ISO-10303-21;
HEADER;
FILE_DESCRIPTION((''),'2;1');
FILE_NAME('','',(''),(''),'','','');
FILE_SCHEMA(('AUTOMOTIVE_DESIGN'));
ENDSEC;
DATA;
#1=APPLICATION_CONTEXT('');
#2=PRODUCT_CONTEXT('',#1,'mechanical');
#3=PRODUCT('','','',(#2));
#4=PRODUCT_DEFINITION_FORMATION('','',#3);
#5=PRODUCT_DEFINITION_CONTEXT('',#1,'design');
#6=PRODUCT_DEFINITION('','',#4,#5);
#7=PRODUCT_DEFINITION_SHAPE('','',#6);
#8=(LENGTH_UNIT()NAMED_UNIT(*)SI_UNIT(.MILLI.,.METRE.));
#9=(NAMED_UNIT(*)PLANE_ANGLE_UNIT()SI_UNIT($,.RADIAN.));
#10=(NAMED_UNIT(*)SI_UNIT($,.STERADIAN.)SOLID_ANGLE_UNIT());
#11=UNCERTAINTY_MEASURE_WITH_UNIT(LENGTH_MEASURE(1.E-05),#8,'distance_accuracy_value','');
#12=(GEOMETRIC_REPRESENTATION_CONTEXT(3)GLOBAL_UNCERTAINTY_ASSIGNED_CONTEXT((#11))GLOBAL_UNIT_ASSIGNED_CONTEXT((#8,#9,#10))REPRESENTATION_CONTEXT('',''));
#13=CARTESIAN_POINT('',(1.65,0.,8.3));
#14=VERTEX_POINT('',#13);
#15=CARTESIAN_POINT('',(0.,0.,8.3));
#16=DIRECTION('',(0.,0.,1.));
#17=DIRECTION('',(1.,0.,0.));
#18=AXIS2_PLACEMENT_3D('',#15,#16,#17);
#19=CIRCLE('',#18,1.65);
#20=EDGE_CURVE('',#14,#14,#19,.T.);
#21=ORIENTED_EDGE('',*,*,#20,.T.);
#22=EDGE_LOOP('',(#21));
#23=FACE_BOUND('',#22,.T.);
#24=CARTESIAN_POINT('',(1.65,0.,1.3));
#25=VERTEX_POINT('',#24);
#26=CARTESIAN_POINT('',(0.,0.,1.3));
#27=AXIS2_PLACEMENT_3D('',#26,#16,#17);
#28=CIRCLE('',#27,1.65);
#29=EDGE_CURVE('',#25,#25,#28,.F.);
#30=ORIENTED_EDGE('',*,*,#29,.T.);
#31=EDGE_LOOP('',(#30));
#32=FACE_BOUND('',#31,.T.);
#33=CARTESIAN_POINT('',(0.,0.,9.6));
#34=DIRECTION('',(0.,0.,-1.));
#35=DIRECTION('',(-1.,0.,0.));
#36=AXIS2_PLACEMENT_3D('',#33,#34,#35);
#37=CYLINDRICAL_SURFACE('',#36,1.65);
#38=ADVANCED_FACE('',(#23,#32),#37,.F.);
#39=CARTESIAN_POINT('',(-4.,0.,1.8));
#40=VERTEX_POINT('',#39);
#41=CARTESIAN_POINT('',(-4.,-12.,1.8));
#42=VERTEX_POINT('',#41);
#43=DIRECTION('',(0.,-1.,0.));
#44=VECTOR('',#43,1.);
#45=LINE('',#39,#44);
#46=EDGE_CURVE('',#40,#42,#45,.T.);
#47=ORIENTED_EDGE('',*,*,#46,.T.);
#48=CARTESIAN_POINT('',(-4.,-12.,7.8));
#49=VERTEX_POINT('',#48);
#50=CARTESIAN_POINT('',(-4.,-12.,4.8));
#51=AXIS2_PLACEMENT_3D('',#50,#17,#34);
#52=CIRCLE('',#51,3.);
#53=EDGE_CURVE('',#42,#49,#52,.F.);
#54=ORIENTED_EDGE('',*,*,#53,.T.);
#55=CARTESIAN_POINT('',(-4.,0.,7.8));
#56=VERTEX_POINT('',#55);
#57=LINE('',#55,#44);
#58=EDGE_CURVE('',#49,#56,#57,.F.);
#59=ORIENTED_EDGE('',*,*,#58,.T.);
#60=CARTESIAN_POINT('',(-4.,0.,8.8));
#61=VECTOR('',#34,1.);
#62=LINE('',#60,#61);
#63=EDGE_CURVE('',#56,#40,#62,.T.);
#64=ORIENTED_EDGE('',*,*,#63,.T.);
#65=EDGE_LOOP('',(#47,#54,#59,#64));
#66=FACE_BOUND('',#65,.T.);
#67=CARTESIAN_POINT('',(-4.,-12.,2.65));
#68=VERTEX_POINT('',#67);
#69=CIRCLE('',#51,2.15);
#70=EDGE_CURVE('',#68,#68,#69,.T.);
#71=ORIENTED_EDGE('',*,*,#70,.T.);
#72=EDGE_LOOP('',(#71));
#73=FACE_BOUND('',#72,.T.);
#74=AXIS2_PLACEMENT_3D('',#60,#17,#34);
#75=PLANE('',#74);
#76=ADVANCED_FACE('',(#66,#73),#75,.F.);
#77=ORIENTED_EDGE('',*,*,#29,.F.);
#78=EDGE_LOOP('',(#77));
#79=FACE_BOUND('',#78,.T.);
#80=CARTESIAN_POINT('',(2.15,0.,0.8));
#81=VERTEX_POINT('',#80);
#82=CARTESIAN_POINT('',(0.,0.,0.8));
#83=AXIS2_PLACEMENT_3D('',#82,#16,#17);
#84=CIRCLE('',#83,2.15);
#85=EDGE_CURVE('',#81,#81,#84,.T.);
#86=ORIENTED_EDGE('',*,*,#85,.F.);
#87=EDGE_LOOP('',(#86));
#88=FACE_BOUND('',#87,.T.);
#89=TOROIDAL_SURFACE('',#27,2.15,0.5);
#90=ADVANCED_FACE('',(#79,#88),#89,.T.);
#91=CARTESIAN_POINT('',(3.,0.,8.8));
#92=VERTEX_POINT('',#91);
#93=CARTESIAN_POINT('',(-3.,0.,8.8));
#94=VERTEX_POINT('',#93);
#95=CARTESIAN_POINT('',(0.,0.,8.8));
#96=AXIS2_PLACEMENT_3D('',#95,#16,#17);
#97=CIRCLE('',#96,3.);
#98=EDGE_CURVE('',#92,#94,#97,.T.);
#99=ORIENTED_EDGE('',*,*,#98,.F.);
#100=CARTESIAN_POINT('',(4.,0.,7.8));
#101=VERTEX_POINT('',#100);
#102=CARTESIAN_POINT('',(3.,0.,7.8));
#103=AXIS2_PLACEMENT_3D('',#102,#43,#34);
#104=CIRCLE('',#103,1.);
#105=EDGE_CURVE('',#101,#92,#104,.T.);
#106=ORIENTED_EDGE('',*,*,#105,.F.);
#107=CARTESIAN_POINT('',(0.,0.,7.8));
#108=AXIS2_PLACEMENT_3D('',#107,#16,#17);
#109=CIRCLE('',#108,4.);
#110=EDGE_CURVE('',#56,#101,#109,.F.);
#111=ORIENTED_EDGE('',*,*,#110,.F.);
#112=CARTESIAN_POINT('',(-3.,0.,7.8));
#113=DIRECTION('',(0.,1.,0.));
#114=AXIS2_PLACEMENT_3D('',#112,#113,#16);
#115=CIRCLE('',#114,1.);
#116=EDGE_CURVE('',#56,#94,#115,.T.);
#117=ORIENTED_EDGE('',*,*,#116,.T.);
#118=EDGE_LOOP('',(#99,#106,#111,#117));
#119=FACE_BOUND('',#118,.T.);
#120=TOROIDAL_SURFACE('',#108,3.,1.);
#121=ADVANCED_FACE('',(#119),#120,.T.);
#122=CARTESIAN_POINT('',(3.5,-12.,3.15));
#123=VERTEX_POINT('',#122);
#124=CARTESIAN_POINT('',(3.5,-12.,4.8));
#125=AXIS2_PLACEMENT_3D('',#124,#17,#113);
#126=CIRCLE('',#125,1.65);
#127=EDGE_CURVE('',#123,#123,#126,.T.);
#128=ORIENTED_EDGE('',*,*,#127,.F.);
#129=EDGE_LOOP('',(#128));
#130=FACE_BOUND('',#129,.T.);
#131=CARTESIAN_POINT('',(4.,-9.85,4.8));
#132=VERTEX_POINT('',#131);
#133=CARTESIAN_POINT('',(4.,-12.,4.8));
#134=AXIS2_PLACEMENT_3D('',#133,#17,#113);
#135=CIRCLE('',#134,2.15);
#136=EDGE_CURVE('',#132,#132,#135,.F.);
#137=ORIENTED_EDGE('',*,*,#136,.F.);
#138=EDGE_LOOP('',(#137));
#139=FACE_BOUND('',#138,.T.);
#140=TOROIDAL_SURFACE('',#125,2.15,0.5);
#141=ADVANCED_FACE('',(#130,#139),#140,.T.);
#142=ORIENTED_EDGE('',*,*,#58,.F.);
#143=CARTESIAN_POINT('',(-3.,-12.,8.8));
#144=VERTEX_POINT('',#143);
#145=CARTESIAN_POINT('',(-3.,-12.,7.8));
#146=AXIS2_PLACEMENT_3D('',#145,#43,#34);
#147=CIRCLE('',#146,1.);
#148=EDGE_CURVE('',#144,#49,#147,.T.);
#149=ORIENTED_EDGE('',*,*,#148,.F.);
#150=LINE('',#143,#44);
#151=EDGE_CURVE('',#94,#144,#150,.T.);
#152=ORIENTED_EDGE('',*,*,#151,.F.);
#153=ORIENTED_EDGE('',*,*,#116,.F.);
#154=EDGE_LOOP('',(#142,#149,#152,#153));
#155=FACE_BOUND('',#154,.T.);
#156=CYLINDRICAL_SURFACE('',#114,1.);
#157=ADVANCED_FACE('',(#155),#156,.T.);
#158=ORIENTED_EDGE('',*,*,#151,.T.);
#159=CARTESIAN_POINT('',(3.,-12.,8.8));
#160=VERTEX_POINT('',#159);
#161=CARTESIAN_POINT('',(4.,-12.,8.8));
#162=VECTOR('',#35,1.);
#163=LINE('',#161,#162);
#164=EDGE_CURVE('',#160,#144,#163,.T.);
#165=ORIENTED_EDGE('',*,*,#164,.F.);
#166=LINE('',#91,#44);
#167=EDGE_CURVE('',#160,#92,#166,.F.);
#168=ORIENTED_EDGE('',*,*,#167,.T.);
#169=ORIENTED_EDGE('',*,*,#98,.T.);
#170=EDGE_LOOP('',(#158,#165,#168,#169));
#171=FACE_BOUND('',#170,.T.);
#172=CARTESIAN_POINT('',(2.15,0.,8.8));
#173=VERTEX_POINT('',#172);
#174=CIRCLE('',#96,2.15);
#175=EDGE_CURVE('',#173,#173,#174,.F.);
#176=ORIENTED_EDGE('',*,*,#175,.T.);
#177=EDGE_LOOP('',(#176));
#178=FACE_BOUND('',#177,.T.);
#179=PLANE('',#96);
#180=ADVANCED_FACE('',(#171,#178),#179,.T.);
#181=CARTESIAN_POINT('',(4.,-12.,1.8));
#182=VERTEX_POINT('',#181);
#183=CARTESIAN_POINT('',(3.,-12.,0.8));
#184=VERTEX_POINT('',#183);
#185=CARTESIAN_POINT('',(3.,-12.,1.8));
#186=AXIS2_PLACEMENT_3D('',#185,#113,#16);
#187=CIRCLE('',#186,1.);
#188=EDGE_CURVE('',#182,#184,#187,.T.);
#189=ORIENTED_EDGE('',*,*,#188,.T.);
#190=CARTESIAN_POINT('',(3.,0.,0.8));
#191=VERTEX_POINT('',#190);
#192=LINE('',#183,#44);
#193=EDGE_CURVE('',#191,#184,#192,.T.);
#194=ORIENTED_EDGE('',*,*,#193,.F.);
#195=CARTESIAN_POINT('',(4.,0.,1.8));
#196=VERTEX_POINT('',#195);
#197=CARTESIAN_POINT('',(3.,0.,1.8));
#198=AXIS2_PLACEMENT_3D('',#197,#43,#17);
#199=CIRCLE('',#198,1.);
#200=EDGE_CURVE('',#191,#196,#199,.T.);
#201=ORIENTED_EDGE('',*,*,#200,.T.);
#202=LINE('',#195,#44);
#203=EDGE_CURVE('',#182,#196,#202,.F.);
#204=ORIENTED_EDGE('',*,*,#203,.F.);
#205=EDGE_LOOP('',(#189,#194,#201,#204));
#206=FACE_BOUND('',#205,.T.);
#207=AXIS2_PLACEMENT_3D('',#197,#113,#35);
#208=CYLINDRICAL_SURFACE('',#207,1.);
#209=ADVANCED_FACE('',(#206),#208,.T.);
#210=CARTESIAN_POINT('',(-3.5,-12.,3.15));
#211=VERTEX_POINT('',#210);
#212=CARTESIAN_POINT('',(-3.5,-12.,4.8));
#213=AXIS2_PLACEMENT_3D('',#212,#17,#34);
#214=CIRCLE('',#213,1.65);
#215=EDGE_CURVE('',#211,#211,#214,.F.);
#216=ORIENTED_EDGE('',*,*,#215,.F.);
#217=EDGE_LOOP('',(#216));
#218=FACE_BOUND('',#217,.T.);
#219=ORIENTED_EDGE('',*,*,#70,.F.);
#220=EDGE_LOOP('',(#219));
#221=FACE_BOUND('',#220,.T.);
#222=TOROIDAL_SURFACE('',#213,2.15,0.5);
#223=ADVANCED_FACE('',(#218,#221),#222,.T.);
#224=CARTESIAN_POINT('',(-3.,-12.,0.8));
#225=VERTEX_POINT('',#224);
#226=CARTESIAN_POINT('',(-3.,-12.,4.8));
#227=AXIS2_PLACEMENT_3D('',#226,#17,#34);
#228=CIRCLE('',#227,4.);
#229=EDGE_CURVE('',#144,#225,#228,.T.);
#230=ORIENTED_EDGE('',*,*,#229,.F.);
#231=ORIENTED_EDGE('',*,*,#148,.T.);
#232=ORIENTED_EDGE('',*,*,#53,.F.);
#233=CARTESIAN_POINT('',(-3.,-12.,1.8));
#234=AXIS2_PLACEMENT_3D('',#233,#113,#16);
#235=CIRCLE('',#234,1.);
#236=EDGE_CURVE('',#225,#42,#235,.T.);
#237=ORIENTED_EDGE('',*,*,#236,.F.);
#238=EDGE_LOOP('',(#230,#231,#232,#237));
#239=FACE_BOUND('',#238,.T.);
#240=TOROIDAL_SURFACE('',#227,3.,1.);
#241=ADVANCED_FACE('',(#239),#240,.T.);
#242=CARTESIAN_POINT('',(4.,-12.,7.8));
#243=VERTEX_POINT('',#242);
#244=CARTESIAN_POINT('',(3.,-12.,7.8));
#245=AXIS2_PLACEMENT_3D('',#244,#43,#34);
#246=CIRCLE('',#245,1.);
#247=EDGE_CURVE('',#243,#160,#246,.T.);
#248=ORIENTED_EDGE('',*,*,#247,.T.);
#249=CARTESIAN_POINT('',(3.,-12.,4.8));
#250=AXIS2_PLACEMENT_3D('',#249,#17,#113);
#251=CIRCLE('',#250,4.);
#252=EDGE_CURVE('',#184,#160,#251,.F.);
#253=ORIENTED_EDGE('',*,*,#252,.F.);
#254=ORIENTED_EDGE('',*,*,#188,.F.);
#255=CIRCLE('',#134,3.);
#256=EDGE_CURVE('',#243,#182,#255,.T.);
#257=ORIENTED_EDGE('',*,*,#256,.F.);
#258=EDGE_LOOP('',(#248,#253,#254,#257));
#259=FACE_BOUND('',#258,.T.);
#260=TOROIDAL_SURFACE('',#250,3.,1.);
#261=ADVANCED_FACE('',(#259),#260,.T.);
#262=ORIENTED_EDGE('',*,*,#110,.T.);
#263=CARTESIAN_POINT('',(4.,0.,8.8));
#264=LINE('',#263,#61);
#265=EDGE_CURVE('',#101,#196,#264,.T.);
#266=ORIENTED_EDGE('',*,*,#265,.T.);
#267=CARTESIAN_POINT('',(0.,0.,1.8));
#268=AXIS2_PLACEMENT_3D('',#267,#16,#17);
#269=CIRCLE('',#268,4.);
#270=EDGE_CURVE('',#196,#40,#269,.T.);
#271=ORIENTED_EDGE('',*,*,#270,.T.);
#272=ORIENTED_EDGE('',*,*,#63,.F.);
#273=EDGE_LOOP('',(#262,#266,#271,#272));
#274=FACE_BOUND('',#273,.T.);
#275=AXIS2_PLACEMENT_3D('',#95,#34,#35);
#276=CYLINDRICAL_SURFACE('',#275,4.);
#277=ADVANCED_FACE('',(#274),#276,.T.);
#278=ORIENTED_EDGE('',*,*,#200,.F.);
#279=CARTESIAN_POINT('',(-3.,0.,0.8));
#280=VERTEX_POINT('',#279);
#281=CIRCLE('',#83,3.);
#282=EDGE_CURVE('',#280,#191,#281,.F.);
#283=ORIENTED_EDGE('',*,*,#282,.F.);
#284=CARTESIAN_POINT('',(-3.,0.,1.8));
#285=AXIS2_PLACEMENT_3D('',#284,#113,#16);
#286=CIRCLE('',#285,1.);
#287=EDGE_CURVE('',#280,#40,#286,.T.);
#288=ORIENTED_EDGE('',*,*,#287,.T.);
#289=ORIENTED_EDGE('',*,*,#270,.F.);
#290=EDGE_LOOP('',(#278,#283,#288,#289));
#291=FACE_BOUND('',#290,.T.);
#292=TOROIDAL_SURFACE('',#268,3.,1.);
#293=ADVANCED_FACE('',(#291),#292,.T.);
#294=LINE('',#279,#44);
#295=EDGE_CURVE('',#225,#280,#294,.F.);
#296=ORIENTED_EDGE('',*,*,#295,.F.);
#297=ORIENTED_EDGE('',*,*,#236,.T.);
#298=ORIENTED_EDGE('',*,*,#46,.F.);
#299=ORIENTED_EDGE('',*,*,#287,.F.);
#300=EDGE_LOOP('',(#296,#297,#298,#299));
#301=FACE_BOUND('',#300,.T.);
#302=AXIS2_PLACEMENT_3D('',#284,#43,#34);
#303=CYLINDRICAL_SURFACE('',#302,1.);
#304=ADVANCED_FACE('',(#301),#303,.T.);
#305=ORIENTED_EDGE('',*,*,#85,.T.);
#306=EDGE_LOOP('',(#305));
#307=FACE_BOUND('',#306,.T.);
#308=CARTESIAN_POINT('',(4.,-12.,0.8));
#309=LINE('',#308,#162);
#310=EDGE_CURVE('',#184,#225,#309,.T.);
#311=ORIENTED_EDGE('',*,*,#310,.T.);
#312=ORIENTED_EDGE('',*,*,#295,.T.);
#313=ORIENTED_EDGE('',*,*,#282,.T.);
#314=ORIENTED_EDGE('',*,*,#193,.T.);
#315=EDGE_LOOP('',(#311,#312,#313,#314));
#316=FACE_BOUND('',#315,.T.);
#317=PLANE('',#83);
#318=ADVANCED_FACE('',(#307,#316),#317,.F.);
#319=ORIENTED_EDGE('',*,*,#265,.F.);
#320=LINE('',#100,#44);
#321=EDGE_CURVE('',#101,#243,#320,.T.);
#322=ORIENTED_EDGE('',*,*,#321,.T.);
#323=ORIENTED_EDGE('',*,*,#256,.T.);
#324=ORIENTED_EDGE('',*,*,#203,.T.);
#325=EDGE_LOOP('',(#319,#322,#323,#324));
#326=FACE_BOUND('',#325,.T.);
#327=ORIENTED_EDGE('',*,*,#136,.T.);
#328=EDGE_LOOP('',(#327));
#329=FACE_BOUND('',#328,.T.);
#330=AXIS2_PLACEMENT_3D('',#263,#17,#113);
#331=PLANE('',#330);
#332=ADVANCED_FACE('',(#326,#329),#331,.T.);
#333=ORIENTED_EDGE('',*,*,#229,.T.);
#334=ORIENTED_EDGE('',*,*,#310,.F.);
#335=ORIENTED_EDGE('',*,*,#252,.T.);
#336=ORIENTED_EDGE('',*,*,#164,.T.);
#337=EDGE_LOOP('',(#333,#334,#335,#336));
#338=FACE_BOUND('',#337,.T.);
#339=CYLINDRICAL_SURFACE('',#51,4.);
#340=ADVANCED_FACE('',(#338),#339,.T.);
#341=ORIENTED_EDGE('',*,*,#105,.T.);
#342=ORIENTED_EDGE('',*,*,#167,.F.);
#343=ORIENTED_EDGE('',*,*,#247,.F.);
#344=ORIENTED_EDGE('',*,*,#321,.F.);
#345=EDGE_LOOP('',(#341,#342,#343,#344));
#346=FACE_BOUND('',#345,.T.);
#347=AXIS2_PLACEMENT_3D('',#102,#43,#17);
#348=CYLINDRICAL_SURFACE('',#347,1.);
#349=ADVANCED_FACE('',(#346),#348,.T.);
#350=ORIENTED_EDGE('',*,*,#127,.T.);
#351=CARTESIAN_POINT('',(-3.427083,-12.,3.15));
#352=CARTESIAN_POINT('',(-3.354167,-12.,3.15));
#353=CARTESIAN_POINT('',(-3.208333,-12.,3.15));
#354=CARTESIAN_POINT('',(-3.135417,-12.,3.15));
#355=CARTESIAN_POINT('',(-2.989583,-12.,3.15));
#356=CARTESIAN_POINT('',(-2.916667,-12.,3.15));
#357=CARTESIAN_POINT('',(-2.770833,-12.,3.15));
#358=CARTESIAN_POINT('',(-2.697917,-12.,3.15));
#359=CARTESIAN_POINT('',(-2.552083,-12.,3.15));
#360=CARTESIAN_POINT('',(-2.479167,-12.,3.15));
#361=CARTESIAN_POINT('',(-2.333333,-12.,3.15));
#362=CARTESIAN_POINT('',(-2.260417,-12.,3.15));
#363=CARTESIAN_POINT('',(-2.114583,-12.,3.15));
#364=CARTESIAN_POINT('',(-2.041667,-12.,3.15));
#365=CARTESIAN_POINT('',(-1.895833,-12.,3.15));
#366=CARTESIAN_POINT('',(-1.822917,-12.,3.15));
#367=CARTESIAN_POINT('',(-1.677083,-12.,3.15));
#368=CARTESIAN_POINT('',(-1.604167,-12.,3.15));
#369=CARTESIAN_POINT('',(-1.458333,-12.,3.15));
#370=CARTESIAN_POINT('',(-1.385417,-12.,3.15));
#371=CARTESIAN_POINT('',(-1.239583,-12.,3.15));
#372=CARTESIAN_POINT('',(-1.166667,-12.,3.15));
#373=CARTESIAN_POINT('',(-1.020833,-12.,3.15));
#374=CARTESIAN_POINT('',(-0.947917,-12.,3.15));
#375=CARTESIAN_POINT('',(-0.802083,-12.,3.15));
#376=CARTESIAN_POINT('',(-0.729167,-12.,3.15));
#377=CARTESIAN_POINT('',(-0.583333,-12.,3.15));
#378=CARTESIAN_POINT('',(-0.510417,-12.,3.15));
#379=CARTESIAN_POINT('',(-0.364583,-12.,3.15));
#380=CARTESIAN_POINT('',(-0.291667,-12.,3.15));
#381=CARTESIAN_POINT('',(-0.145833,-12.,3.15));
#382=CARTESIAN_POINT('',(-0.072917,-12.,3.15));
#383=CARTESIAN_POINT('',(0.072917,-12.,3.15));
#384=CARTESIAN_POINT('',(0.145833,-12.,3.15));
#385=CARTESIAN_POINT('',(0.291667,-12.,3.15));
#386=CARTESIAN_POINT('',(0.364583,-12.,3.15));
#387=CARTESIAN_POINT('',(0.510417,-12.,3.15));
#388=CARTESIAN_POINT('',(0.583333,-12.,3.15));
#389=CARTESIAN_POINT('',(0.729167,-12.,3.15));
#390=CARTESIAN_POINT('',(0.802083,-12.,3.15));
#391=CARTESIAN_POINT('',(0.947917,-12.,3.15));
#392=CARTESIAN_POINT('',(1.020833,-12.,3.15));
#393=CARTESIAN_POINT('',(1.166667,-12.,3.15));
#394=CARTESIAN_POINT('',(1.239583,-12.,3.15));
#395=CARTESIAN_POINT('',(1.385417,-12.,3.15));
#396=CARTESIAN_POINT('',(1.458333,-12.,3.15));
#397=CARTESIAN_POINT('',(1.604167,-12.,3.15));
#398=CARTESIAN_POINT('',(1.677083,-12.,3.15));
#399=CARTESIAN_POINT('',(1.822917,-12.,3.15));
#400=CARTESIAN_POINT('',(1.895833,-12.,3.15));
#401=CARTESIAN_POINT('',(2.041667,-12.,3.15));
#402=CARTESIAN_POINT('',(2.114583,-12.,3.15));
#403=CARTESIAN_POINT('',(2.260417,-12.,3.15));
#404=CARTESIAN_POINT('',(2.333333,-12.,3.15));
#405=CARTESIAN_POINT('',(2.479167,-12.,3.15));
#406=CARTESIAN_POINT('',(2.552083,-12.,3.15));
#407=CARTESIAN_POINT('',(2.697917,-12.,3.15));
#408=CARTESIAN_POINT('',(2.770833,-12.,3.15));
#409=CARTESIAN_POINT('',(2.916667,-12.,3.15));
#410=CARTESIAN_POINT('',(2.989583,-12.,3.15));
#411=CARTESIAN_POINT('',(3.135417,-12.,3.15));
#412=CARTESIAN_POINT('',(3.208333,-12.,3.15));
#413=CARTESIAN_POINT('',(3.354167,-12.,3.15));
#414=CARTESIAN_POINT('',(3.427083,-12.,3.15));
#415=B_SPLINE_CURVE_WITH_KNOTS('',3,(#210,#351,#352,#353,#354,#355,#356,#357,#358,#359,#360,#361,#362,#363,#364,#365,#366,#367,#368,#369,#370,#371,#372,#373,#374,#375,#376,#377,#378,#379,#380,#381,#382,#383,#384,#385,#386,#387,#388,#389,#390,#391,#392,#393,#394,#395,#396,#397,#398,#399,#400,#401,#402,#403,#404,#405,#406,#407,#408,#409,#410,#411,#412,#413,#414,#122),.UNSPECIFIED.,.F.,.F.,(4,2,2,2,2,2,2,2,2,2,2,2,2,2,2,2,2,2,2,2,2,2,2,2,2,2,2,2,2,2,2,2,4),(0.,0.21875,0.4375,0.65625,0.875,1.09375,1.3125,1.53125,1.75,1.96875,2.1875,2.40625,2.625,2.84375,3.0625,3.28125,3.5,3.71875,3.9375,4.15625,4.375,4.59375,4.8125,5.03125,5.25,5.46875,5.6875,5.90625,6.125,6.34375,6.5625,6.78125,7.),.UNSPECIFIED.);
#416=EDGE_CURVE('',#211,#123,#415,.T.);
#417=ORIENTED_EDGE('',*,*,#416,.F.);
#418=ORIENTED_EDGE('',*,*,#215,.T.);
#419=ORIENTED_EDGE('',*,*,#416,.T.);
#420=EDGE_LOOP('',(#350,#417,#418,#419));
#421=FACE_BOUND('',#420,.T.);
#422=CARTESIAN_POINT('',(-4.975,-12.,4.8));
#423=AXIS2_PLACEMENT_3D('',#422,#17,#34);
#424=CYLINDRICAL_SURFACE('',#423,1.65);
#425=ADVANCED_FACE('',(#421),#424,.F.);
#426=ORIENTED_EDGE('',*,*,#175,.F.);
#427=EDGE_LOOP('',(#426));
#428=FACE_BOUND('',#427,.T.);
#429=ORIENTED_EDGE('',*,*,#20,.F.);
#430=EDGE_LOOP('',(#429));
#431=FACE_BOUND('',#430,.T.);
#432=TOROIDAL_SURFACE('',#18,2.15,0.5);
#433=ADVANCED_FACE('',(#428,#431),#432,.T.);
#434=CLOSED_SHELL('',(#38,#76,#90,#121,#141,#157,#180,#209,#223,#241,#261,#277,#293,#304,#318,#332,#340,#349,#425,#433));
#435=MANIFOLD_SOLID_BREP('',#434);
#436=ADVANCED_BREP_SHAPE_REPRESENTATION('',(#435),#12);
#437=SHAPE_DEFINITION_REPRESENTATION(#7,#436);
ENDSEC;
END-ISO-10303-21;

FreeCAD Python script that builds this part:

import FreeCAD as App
import Part
import Sketcher

V = App.Vector


def edges_at(feature, points):
    """Names of the edges that pass closest to the given points."""
    edges = feature.Shape.Edges
    near = lambda p: min(range(len(edges)), key=lambda i: edges[i].distToShape(Part.Vertex(*p))[0])
    return sorted({f"Edge{near(p) + 1}" for p in points})


def add_polygon(sketch, points):
    """Adds a closed chain of lines whose ends are joined by coincident constraints."""
    first, n = sketch.GeometryCount, len(points)
    for a, b in zip(points, points[1:] + points[:1]):
        sketch.addGeometry(Part.LineSegment(App.Vector(*a, 0), App.Vector(*b, 0)), False)
    for i in range(n):
        sketch.addConstraint(Sketcher.Constraint("Coincident", first + i, 2, first + (i + 1) % n, 1))

doc = App.newDocument("Part")
body = doc.addObject("PartDesign::Body", "Body")

sketch1 = body.newObject("Sketcher::SketchObject", "Sketch")
sketch1.AttachmentSupport = (doc.getObject("XY_Plane"), [""])
sketch1.MapMode = "FlatFace"
sketch1.AttachmentOffset = App.Placement(V(0, 0, 0.8), App.Rotation())
sketch1.addGeometry(Part.Circle(V(0, 0, 0), V(0, 0, 1), 4), False)
sketch1.addConstraint([
    Sketcher.Constraint("Coincident", 0, 3, -1, 1),
    Sketcher.Constraint("Diameter", 0, 8.0),
])
pad1 = body.newObject("PartDesign::Pad", "Pad")
pad1.Profile = sketch1
pad1.Length = 8

sketch2 = body.newObject("Sketcher::SketchObject", "Sketch001")
sketch2.AttachmentSupport = (doc.getObject("XY_Plane"), [""])
sketch2.MapMode = "FlatFace"
sketch2.AttachmentOffset = App.Placement(V(0, 0, 0.8), App.Rotation())
add_polygon(sketch2, [(4, 0), (4, -12), (-4, -12), (-4, 0)])
sketch2.addConstraint([
    Sketcher.Constraint("Vertical", 0),
    Sketcher.Constraint("Horizontal", 1),
    Sketcher.Constraint("Vertical", 2),
    Sketcher.Constraint("Horizontal", 3),
    Sketcher.Constraint("Symmetric", 2, 2, 3, 2, -1, 1),
    Sketcher.Constraint("DistanceX", 1, 2, 1, 1, 8.0),
    Sketcher.Constraint("DistanceY", 0, 2, 0, 1, 12.0),
])
pad2 = body.newObject("PartDesign::Pad", "Pad001")
pad2.Profile = sketch2
pad2.Length = 8

sketch3 = body.newObject("Sketcher::SketchObject", "Sketch002")
sketch3.AttachmentSupport = (doc.getObject("YZ_Plane"), [""])
sketch3.MapMode = "FlatFace"
sketch3.AttachmentOffset = App.Placement(V(0, 0, 4), App.Rotation())
sketch3.addGeometry(Part.Circle(V(-12, 4.8, 0), V(0, 0, 1), 4), False)
sketch3.addConstraint([
    Sketcher.Constraint("Diameter", 0, 8.0),
    Sketcher.Constraint("DistanceX", 0, 3, -1, 1, 12.0),
    Sketcher.Constraint("DistanceY", -1, 1, 0, 3, 4.8),
])
pad3 = body.newObject("PartDesign::Pad", "Pad002")
pad3.Profile = sketch3
pad3.Length = 8
pad3.Reversed = True

sketch4 = body.newObject("Sketcher::SketchObject", "Sketch003")
sketch4.AttachmentSupport = (doc.getObject("XY_Plane"), [""])
sketch4.MapMode = "FlatFace"
sketch4.addGeometry(Part.Circle(V(0, 0, 0), V(0, 0, 1), 1.6), False)
sketch4.addConstraint([
    Sketcher.Constraint("Coincident", 0, 3, -1, 1),
    Sketcher.Constraint("Diameter", 0, 3.3),
])
pocket1 = body.newObject("PartDesign::Pocket", "Pocket")
pocket1.Profile = sketch4
pocket1.Length = 9.6
pocket1.Reversed = True

sketch5 = body.newObject("Sketcher::SketchObject", "Sketch004")
sketch5.AttachmentSupport = (doc.getObject("YZ_Plane"), [""])
sketch5.MapMode = "FlatFace"
sketch5.AttachmentOffset = App.Placement(V(0, 0, 4.975), App.Rotation())
sketch5.addGeometry(Part.Circle(V(-12, 4.8, 0), V(0, 0, 1), 1.6), False)
sketch5.addConstraint([
    Sketcher.Constraint("Diameter", 0, 3.3),
    Sketcher.Constraint("DistanceX", 0, 3, -1, 1, 12.0),
    Sketcher.Constraint("DistanceY", -1, 1, 0, 3, 4.8),
])
pocket2 = body.newObject("PartDesign::Pocket", "Pocket001")
pocket2.Profile = sketch5
pocket2.Length = 9.95
doc.recompute()

fillet = body.newObject("PartDesign::Fillet", "Fillet")
fillet.Base = (pocket2, edges_at(pocket2, [
    (-4, -6, 8.8),
    (4, -6, 0.8),
    (0, 4, 0.8),
    (-4, -16, 4.8),
    (4, -16, 4.8),
    (0, 4, 8.8),
    (-4, -6, 0.8),
    (4, -6, 8.8),
]))
fillet.Radius = 1
doc.recompute()

fillet2 = body.newObject("PartDesign::Fillet", "Fillet001")
fillet2.Base = (fillet, edges_at(fillet, [
    (-1.65, 0, 8.8),
    (-1.65, 0, 0.8),
    (-4, -12, 6.45),
    (4, -12, 6.45),
]))
fillet2.Radius = 0.5

doc.recompute()
